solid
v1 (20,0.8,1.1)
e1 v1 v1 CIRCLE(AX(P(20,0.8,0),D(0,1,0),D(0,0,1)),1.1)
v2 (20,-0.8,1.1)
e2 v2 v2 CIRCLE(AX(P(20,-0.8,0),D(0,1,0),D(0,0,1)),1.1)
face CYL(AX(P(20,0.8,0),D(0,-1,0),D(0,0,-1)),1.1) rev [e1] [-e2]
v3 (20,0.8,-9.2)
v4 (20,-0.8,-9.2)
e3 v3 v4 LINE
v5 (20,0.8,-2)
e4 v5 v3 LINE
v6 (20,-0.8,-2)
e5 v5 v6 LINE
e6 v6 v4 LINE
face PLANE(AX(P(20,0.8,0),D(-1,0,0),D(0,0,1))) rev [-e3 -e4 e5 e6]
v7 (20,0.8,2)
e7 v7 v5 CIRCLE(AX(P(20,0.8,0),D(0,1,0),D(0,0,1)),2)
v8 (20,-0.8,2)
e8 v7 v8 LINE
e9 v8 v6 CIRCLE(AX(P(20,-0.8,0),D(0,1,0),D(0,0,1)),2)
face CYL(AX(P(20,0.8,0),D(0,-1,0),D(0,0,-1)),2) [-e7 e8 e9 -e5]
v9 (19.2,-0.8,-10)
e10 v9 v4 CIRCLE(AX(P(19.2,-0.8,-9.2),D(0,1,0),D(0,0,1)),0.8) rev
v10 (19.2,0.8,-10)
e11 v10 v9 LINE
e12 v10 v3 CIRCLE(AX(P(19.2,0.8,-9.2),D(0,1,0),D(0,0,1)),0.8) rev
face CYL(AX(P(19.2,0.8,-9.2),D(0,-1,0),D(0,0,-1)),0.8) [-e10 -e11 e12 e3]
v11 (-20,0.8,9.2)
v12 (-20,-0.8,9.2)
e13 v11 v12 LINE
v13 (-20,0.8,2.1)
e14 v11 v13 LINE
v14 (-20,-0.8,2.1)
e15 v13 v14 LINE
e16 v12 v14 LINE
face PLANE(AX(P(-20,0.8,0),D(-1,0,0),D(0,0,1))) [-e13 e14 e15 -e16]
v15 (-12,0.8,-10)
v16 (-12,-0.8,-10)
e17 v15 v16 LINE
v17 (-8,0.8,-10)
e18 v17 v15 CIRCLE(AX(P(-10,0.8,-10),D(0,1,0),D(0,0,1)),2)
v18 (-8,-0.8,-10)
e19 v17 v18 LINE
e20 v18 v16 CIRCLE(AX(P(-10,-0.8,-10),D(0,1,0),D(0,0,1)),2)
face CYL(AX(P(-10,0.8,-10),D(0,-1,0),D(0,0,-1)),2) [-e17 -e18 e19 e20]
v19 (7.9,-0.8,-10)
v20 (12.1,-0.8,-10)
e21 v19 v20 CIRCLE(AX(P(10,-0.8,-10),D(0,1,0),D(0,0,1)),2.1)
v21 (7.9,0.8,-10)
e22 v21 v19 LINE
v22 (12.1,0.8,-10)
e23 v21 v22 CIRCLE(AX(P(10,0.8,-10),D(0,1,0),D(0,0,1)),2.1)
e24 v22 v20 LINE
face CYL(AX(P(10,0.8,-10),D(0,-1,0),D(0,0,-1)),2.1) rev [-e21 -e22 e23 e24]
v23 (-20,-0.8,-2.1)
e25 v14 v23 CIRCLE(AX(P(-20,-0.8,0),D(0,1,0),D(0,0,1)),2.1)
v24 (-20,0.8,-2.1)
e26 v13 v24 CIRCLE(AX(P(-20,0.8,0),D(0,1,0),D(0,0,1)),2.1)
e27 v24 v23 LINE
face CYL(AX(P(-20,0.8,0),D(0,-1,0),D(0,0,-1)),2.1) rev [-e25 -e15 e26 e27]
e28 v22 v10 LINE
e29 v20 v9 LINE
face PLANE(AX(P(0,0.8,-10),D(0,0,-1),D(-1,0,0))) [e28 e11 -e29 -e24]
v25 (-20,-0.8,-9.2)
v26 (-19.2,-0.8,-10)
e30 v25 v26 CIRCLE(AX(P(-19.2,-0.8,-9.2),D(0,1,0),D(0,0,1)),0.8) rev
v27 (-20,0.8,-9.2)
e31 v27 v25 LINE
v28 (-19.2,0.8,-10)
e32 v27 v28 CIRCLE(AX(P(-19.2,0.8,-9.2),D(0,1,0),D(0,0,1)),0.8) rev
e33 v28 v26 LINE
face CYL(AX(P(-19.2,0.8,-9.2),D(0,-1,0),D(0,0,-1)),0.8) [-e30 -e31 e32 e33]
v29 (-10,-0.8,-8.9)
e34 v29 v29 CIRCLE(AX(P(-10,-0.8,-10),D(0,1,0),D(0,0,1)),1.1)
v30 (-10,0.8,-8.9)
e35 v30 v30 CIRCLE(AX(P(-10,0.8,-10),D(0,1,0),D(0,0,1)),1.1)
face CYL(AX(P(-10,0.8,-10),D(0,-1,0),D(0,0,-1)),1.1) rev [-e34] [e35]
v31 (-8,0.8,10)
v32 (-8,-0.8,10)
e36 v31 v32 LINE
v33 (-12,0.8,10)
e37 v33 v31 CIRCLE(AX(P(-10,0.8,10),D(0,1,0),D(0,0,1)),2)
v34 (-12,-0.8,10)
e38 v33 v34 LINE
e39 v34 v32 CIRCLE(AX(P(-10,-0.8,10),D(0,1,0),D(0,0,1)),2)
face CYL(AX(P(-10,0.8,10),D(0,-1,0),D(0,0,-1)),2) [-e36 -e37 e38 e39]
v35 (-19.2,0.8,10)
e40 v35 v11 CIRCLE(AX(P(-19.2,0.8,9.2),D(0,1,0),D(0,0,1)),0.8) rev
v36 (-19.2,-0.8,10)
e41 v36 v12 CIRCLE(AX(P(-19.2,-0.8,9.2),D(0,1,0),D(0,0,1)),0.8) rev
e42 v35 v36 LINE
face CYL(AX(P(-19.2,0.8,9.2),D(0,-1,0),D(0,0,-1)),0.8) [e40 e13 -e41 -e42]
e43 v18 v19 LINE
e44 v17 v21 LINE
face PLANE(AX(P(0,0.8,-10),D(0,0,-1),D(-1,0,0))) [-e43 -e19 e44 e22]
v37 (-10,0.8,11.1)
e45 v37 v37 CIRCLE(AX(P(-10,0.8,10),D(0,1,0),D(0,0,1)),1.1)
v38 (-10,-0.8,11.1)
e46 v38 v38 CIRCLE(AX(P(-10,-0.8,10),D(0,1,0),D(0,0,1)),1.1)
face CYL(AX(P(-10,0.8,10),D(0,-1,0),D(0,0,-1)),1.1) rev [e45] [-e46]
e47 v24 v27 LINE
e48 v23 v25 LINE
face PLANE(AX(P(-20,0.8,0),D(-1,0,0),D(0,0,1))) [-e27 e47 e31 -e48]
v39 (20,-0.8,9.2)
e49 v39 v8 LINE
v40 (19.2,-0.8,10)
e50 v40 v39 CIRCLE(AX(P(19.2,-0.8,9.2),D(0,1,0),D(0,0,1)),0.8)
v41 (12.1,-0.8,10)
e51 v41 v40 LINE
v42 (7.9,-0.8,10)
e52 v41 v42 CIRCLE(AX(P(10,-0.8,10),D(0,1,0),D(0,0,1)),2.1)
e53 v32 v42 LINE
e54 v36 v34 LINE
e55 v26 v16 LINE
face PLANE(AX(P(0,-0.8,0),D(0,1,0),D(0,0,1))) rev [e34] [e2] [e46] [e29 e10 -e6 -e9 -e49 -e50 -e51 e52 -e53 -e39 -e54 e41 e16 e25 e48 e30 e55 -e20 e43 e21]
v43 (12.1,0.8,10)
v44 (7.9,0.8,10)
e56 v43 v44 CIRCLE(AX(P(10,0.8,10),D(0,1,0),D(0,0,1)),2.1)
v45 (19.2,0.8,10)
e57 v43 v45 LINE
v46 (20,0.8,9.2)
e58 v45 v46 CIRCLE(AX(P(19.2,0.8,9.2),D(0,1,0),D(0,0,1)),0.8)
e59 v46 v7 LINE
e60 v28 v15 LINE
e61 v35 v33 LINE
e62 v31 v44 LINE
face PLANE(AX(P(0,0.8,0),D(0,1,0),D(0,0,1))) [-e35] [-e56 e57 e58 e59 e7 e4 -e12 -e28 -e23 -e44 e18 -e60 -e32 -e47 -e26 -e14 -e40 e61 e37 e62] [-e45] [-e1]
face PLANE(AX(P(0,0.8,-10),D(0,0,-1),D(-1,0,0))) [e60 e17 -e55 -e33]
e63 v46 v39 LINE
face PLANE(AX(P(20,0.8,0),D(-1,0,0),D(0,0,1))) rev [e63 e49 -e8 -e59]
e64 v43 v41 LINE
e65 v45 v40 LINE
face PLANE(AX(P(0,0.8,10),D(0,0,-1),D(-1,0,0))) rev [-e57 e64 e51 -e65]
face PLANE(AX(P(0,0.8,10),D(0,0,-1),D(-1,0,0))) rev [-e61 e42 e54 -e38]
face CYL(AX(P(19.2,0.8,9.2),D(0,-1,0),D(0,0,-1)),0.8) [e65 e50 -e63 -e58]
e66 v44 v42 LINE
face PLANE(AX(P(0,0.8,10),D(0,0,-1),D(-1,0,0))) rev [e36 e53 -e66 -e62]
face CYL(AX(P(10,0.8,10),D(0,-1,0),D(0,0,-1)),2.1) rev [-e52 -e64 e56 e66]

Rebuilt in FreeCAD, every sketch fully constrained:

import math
import FreeCAD as App
import Part
import Sketcher
from FreeCAD import Vector
Q = App.Units.Quantity

doc = App.newDocument("Part")
body = doc.addObject("PartDesign::Body", "Body")

# Sketch on XZ plane
sketch1 = body.newObject("Sketcher::SketchObject", "Sketch")
sketch1.AttachmentSupport = (doc.getObject("XZ_Plane"), [""])
sketch1.MapMode = "FlatFace"
sketch1.addGeometry([
    Part.ArcOfCircle(Part.Circle(Vector(-10, 10, 0), Vector(0, 0, 1), 2), math.radians(0), math.radians(180)),  # 0
    Part.LineSegment(Vector(-8, 10, 0), Vector(7.9, 10, 0)),  # 1
    Part.ArcOfCircle(Part.Circle(Vector(10, 10, 0), Vector(0, 0, 1), 2.1), math.radians(180), math.radians(360)),  # 2
    Part.LineSegment(Vector(12.1, 10, 0), Vector(19.2, 10, 0)),  # 3
    Part.ArcOfCircle(Part.Circle(Vector(19.2, 9.2, 0), Vector(0, 0, 1), 0.8), math.radians(0), math.radians(90)),  # 4
    Part.LineSegment(Vector(20, 9.2, 0), Vector(20, 2, 0)),  # 5
    Part.ArcOfCircle(Part.Circle(Vector(20, 0, 0), Vector(0, 0, 1), 2), math.radians(-90), math.radians(90)),  # 6
    Part.LineSegment(Vector(20, -2, 0), Vector(20, -9.2, 0)),  # 7
    Part.ArcOfCircle(Part.Circle(Vector(19.2, -9.2, 0), Vector(0, 0, 1), 0.8), math.radians(-90), math.radians(0)),  # 8
    Part.LineSegment(Vector(19.2, -10, 0), Vector(12.1, -10, 0)),  # 9
    Part.ArcOfCircle(Part.Circle(Vector(10, -10, 0), Vector(0, 0, 1), 2.1), math.radians(0), math.radians(180)),  # 10
    Part.LineSegment(Vector(7.9, -10, 0), Vector(-8, -10, 0)),  # 11
    Part.ArcOfCircle(Part.Circle(Vector(-10, -10, 0), Vector(0, 0, 1), 2), math.radians(180), math.radians(360)),  # 12
    Part.LineSegment(Vector(-12, -10, 0), Vector(-19.2, -10, 0)),  # 13
    Part.ArcOfCircle(Part.Circle(Vector(-19.2, -9.2, 0), Vector(0, 0, 1), 0.8), math.radians(180), math.radians(270)),  # 14
    Part.LineSegment(Vector(-20, -9.2, 0), Vector(-20, -2.1, 0)),  # 15
    Part.ArcOfCircle(Part.Circle(Vector(-20, 0, 0), Vector(0, 0, 1), 2.1), math.radians(-90), math.radians(90)),  # 16
    Part.LineSegment(Vector(-20, 2.1, 0), Vector(-20, 9.2, 0)),  # 17
    Part.ArcOfCircle(Part.Circle(Vector(-19.2, 9.2, 0), Vector(0, 0, 1), 0.8), math.radians(90), math.radians(180)),  # 18
    Part.LineSegment(Vector(-19.2, 10, 0), Vector(-12, 10, 0)),  # 19
    Part.Circle(Vector(-10, 10, 0), Vector(0, 0, 1), 1.1),  # 20
    Part.Circle(Vector(-10, -10, 0), Vector(0, 0, 1), 1.1),  # 21
    Part.Circle(Vector(20, 0, 0), Vector(0, 0, 1), 1.1),  # 22
], False)
sketch1.addConstraint([
    Sketcher.Constraint("Coincident", 0, 1, 1, 1),
    Sketcher.Constraint("Coincident", 1, 2, 2, 1),
    Sketcher.Constraint("Coincident", 2, 2, 3, 1),
    Sketcher.Constraint("Tangent", 3, 2, 4, 2),
    Sketcher.Constraint("Tangent", 4, 1, 5, 1),
    Sketcher.Constraint("Coincident", 5, 2, 6, 2),
    Sketcher.Constraint("Coincident", 6, 1, 7, 1),
    Sketcher.Constraint("Tangent", 7, 2, 8, 2),
    Sketcher.Constraint("Tangent", 8, 1, 9, 1),
    Sketcher.Constraint("Coincident", 9, 2, 10, 1),
    Sketcher.Constraint("Coincident", 10, 2, 11, 1),
    Sketcher.Constraint("Coincident", 11, 2, 12, 2),
    Sketcher.Constraint("Coincident", 12, 1, 13, 1),
    Sketcher.Constraint("Tangent", 13, 2, 14, 2),
    Sketcher.Constraint("Tangent", 14, 1, 15, 1),
    Sketcher.Constraint("Coincident", 15, 2, 16, 1),
    Sketcher.Constraint("Coincident", 16, 2, 17, 1),
    Sketcher.Constraint("Tangent", 17, 2, 18, 2),
    Sketcher.Constraint("Tangent", 18, 1, 19, 1),
    Sketcher.Constraint("Coincident", 19, 2, 0, 2),
    Sketcher.Constraint("Horizontal", 1),
    Sketcher.Constraint("Horizontal", 3),
    Sketcher.Constraint("Vertical", 5),
    Sketcher.Constraint("Vertical", 7),
    Sketcher.Constraint("Horizontal", 9),
    Sketcher.Constraint("Horizontal", 11),
    Sketcher.Constraint("Horizontal", 13),
    Sketcher.Constraint("Vertical", 15),
    Sketcher.Constraint("Vertical", 17),
    Sketcher.Constraint("Horizontal", 19),
    Sketcher.Constraint("Coincident", 20, 3, 0, 3),
    Sketcher.Constraint("Coincident", 21, 3, 12, 3),
    Sketcher.Constraint("Coincident", 22, 3, 6, 3),
    Sketcher.Constraint("Equal", 0, 6),
    Sketcher.Constraint("Equal", 4, 8),
    Sketcher.Constraint("Equal", 2, 10),
    Sketcher.Constraint("Equal", 6, 12),
    Sketcher.Constraint("Equal", 8, 14),
    Sketcher.Constraint("Equal", 10, 16),
    Sketcher.Constraint("Equal", 14, 18),
    Sketcher.Constraint("Equal", 20, 21),
    Sketcher.Constraint("Equal", 21, 22),
    Sketcher.Constraint("Symmetric", 0, 3, 10, 3, -1, 1),
    Sketcher.Constraint("Symmetric", 2, 3, 12, 3, -1, 1),
    Sketcher.Constraint("Symmetric", 4, 3, 14, 3, -1, 1),
    Sketcher.Constraint("Symmetric", 6, 3, 16, 3, -1, 1),
    Sketcher.Constraint("Symmetric", 8, 3, 18, 3, -1, 1),
    Sketcher.Constraint("Symmetric", 0, 3, 2, 3, -2),
    Sketcher.Constraint("Symmetric", 8, 3, 14, 3, -2),
    Sketcher.Constraint("PointOnObject", 6, 3, -1),
    Sketcher.Constraint("Horizontal", 20, 3, 0, 1),
    Sketcher.Constraint("Horizontal", 1, 2, 2, 2),
    Sketcher.Constraint("Horizontal", 9, 2, 10, 2),
    Sketcher.Constraint("Vertical", 22, 3, 4, 1),
    Sketcher.Constraint("Equal", 19, 5),
    Sketcher.Constraint("Radius", 0, Q("2 mm")),
    Sketcher.Constraint("Diameter", 20, Q("2.2 mm")),
    Sketcher.Constraint("Radius", 2, Q("2.1 mm")),
    Sketcher.Constraint("Radius", 4, Q("0.8 mm")),
    Sketcher.Constraint("DistanceX", 1, 1, 1, 2, Q("15.9 mm")),
    Sketcher.Constraint("DistanceX", 3, 1, 3, 2, Q("7.1 mm")),
])
pad1 = body.newObject("PartDesign::Pad", "Pad")
pad1.Profile = sketch1
pad1.Length = 1.6
pad1.Midplane = True

doc.recompute()
